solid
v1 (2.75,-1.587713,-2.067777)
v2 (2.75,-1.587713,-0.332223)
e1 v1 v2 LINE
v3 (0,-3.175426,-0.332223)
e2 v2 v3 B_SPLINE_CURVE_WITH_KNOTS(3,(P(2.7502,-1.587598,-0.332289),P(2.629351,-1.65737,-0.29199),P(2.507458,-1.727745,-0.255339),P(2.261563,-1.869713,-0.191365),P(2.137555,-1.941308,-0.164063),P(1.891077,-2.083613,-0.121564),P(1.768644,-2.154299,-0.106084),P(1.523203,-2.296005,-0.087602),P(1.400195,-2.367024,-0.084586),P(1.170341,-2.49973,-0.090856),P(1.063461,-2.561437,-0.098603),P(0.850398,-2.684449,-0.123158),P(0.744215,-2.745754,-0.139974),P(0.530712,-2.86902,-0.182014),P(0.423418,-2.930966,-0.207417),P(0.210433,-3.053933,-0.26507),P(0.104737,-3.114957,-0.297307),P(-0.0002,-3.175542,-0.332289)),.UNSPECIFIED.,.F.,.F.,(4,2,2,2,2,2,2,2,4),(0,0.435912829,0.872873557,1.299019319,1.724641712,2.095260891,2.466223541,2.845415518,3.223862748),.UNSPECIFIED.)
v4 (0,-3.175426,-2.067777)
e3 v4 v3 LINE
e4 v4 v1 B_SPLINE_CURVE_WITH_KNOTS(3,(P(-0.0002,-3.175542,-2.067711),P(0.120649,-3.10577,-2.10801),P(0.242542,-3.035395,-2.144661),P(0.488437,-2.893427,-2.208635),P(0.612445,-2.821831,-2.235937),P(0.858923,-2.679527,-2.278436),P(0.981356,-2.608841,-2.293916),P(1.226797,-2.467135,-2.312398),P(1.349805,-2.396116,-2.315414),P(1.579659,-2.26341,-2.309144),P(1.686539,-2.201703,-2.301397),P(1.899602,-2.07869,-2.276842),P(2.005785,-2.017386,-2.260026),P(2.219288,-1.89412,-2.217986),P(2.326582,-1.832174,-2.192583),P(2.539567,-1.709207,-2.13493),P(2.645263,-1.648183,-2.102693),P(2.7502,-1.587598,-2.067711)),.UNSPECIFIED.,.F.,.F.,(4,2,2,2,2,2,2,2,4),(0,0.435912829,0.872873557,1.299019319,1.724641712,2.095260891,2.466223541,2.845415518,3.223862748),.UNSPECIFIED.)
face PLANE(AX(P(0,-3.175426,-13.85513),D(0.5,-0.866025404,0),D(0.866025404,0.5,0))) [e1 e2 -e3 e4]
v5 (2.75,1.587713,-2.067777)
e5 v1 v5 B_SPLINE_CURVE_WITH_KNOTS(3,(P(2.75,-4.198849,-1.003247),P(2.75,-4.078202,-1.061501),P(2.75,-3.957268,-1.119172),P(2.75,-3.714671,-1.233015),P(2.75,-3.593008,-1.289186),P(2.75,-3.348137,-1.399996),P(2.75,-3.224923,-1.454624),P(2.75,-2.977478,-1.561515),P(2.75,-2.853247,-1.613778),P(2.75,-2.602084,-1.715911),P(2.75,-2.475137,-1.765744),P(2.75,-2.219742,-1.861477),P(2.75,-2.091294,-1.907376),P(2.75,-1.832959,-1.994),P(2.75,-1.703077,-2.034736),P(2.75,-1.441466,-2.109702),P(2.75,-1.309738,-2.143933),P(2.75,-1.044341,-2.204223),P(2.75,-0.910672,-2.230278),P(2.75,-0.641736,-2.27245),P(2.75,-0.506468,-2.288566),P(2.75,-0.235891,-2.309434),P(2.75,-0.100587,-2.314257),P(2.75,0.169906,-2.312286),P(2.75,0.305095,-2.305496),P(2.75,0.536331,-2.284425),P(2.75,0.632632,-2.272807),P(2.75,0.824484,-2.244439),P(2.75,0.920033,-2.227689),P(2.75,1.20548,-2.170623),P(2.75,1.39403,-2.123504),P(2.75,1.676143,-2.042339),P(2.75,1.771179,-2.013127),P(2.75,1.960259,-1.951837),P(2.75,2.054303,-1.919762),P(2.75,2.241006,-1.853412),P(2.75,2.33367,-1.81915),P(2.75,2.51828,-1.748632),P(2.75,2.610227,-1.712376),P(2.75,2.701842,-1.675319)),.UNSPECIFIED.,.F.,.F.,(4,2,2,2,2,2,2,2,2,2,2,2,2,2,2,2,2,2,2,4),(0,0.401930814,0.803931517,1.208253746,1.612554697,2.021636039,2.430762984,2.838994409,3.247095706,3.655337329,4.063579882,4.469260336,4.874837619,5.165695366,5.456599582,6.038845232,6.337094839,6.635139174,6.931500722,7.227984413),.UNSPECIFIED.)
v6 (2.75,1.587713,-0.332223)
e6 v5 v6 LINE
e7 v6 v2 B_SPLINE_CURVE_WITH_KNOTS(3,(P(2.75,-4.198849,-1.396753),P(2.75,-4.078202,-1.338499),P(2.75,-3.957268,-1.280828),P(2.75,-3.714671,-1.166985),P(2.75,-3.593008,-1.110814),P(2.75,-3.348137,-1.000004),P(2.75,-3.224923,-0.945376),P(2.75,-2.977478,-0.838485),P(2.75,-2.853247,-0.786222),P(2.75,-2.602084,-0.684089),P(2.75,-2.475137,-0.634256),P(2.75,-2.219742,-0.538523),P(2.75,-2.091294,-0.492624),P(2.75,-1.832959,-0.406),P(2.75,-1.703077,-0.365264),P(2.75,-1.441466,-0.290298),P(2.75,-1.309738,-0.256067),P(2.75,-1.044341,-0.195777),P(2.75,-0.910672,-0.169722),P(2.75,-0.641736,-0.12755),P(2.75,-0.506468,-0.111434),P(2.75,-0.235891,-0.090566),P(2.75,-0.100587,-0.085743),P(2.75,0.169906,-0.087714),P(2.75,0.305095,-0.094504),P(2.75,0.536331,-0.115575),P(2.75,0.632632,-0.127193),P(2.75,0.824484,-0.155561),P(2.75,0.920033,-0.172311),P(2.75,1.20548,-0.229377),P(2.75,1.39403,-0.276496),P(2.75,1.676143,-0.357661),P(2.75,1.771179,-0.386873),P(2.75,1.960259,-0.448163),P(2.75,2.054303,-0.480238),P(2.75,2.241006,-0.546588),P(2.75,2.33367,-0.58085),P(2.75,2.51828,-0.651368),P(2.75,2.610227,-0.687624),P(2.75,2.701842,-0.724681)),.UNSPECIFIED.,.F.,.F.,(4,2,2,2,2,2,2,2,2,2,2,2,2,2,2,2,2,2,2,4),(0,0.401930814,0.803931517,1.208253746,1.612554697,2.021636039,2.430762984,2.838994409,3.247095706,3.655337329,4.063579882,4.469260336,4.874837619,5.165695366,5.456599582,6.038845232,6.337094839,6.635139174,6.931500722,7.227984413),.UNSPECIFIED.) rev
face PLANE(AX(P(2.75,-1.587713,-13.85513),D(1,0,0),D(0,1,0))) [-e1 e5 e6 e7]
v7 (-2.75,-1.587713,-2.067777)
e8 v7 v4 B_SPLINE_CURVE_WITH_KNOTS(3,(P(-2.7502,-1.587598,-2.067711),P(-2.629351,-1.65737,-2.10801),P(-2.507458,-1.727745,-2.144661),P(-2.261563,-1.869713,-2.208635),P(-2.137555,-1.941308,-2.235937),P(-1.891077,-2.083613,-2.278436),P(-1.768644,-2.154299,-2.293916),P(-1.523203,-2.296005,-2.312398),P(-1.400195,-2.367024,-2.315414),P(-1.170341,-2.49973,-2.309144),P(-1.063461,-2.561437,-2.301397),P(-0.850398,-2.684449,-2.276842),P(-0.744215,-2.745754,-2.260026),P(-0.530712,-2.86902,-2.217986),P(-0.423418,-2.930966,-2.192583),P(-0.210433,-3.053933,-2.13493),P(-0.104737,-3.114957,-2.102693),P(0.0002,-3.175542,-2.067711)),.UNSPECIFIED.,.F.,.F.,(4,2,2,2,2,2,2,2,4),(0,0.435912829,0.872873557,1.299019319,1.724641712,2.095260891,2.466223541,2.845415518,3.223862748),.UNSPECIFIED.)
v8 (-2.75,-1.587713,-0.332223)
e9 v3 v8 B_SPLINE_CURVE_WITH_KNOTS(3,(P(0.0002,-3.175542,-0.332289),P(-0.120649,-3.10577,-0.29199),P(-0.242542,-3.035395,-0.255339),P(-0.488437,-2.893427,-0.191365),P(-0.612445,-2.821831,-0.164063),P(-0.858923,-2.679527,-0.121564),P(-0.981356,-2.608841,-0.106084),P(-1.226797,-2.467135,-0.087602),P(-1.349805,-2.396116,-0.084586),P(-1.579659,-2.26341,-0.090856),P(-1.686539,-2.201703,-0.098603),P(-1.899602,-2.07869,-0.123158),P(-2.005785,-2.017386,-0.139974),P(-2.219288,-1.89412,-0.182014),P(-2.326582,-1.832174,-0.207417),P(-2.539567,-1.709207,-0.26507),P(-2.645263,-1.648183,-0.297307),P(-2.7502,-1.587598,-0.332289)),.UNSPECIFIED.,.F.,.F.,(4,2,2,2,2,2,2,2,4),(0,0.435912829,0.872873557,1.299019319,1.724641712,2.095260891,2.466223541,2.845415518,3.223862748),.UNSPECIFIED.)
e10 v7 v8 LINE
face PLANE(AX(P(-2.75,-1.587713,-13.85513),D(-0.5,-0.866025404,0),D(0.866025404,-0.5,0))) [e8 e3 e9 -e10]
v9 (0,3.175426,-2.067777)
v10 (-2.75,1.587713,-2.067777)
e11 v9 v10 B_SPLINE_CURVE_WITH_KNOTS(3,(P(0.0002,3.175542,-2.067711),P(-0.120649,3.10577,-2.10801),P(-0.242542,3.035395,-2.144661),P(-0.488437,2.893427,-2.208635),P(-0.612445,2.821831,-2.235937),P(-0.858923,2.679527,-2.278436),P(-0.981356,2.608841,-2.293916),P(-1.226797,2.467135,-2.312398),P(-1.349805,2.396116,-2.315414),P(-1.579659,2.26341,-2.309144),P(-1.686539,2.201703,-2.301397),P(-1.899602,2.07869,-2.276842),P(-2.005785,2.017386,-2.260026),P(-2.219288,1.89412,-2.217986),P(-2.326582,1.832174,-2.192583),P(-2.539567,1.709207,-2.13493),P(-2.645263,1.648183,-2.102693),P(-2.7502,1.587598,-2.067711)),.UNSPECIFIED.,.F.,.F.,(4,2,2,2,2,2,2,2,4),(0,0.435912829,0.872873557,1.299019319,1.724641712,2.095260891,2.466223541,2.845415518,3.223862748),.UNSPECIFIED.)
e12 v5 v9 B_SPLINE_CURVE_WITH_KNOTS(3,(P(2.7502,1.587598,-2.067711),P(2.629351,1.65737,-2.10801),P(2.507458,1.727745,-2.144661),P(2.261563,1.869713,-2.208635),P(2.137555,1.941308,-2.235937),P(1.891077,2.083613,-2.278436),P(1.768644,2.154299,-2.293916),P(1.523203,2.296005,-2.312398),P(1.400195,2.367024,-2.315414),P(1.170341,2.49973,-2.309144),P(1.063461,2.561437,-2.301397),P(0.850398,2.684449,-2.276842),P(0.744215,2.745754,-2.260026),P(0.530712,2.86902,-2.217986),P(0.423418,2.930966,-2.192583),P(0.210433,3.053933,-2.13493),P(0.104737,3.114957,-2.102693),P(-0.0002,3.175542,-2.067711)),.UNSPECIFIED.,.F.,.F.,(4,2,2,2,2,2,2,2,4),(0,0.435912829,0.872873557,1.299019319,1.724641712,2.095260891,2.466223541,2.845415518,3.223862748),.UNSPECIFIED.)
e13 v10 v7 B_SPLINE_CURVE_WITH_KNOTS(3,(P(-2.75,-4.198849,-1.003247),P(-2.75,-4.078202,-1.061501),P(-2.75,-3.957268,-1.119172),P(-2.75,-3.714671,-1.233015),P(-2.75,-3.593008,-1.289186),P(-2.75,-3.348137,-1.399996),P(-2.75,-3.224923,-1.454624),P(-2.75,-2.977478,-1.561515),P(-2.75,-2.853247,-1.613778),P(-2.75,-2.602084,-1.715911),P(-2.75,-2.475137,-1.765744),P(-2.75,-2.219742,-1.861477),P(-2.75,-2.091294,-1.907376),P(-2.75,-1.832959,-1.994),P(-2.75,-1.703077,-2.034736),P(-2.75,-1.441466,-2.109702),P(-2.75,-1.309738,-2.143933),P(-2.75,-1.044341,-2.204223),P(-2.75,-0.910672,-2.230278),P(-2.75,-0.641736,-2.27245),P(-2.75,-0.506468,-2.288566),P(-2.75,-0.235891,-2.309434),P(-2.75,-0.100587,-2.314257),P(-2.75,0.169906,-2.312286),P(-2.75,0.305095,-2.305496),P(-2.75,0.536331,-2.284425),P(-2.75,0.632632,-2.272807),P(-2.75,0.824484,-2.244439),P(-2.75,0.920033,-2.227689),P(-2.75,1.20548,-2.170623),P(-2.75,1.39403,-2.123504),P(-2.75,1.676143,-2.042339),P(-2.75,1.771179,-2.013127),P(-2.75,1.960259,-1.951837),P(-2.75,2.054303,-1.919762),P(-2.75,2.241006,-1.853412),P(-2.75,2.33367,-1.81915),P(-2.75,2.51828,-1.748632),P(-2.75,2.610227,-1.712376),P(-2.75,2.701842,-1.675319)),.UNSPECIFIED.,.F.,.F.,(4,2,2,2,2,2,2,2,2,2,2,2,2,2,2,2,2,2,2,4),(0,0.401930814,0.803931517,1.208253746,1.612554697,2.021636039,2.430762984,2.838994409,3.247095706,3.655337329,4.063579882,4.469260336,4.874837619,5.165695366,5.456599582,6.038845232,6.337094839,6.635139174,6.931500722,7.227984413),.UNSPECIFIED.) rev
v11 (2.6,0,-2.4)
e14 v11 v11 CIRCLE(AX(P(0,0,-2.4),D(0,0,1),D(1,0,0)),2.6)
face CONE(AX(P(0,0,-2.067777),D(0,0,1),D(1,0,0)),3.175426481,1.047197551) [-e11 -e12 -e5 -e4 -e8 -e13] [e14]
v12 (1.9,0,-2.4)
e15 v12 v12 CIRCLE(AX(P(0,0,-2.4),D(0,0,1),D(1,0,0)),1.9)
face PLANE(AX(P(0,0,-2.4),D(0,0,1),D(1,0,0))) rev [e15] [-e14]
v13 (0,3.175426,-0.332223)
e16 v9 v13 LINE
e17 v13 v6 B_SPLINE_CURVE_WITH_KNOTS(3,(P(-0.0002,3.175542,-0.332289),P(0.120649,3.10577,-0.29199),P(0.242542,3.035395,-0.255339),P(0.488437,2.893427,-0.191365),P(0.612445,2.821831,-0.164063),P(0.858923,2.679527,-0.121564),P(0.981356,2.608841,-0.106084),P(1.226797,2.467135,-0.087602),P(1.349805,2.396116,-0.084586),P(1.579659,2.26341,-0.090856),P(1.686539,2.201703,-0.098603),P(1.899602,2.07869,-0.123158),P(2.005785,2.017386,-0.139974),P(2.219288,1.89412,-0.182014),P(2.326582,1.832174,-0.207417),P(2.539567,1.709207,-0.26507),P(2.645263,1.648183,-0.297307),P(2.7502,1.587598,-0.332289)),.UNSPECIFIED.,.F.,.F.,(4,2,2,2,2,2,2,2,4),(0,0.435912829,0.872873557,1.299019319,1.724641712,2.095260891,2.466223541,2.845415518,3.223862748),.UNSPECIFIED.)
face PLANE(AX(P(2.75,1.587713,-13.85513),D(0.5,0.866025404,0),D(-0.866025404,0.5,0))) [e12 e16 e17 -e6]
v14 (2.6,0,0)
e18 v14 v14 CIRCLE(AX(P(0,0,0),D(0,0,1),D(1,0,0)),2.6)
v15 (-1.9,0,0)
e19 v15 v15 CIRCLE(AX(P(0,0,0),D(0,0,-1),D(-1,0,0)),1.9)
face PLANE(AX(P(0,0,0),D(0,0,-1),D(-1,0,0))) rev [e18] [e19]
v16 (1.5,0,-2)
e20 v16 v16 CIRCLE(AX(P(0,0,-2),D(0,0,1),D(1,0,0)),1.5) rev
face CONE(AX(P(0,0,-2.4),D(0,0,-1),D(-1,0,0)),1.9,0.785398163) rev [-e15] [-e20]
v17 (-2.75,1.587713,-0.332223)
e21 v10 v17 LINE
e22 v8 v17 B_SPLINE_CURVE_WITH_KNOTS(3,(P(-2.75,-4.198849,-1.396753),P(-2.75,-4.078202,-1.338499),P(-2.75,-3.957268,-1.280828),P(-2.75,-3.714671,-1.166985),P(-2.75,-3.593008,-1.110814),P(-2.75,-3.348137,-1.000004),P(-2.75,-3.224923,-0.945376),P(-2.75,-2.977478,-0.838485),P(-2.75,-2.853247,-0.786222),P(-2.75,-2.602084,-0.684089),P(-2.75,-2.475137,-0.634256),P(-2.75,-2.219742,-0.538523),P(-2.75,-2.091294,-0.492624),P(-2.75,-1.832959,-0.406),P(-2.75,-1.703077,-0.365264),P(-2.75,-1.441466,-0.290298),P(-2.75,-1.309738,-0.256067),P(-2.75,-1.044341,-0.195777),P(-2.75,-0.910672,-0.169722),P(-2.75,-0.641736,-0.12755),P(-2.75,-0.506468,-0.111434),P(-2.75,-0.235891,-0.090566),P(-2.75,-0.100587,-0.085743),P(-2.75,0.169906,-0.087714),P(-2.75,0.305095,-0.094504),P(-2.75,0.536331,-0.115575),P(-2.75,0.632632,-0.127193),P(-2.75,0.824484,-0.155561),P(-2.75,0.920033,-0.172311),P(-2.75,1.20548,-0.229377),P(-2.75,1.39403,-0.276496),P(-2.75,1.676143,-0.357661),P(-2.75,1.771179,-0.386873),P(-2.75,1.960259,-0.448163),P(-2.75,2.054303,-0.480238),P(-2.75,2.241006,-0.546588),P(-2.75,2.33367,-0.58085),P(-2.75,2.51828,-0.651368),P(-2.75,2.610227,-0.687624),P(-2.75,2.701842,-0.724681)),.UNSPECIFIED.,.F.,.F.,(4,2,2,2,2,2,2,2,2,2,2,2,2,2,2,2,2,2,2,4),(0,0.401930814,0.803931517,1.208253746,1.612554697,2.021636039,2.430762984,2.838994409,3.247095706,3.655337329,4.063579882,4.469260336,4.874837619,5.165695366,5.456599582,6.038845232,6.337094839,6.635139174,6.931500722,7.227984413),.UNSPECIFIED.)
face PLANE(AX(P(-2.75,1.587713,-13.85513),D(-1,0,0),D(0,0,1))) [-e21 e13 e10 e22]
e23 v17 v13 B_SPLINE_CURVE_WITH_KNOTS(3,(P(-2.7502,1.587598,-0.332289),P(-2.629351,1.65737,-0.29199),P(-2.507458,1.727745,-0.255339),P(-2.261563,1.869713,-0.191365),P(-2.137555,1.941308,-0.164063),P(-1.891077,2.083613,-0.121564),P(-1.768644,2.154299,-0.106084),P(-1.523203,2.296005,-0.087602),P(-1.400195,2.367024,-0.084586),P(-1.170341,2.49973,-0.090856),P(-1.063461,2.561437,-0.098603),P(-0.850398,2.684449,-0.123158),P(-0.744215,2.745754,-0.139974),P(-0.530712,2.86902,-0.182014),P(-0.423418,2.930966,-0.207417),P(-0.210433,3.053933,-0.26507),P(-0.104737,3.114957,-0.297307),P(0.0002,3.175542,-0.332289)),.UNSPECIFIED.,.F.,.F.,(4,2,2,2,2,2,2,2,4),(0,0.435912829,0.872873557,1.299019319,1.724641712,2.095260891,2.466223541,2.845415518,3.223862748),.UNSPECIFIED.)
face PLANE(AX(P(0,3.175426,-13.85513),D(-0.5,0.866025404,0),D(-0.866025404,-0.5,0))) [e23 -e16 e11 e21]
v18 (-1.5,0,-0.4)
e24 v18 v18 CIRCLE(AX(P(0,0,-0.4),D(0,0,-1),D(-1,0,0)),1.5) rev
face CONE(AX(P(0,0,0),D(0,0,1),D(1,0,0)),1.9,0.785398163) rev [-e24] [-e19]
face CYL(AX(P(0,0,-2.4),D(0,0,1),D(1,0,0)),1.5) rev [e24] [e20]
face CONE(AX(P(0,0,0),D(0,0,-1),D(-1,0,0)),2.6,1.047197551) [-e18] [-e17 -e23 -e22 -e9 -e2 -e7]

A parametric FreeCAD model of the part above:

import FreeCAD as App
import Part
import Sketcher
from FreeCAD import Vector
Q = App.Units.Quantity


def edges_at(feature, points):
    """Names of the edges that pass closest to the given points."""
    edges = feature.Shape.Edges
    near = lambda p: min(range(len(edges)), key=lambda i: edges[i].distToShape(Part.Vertex(*p))[0])
    return sorted({f"Edge{near(p) + 1}" for p in points})


def add_polygon(sketch, points):
    """Adds a closed chain of lines whose ends are joined by coincident constraints."""
    first, n = sketch.GeometryCount, len(points)
    for a, b in zip(points, points[1:] + points[:1]):
        sketch.addGeometry(Part.LineSegment(App.Vector(*a, 0), App.Vector(*b, 0)), False)
    for i in range(n):
        sketch.addConstraint(Sketcher.Constraint("Coincident", first + i, 2, first + (i + 1) % n, 1))

doc = App.newDocument("Part")
body = doc.addObject("PartDesign::Body", "Body")

sketch1 = body.newObject("Sketcher::SketchObject", "Sketch")
sketch1.AttachmentSupport = (doc.getObject("XZ_Plane"), [""])
sketch1.MapMode = "FlatFace"
add_polygon(sketch1, [(-4, -2.4), (-4, 0), (0, 0), (0, -2.4)])
sketch1.addConstraint([
    Sketcher.Constraint("Vertical", 0),
    Sketcher.Constraint("Horizontal", 1),
    Sketcher.Constraint("Vertical", 2),
    Sketcher.Constraint("Horizontal", 3),
    Sketcher.Constraint("Coincident", 1, 2, -1, 1),
    Sketcher.Constraint("DistanceX", 1, 1, 1, 2, Q("4 mm")),
    Sketcher.Constraint("DistanceY", 0, 1, 0, 2, Q("2.4 mm")),
])
revolution = body.newObject("PartDesign::Revolution", "Revolution")
revolution.Profile = sketch1
revolution.ReferenceAxis = (sketch1, ["V_Axis"])
revolution.Angle = 360

sketch2 = body.newObject("Sketcher::SketchObject", "Sketch001")
sketch2.AttachmentSupport = (doc.getObject("XY_Plane"), [""])
sketch2.MapMode = "FlatFace"
add_polygon(sketch2, [(-6.2, 6.2), (-6.2, -6.2), (6.2, -6.2), (6.2, 6.2)])
add_polygon(sketch2, [(2.8, 1.6), (2.8, -1.6), (0, -3.2), (-2.8, -1.6), (-2.8, 1.6), (0, 3.2)])
sketch2.addConstraint([
    Sketcher.Constraint("Vertical", 0),
    Sketcher.Constraint("Horizontal", 1),
    Sketcher.Constraint("Vertical", 2),
    Sketcher.Constraint("Horizontal", 3),
    Sketcher.Constraint("Vertical", 4),
    Sketcher.Constraint("Vertical", 7),
    Sketcher.Constraint("Symmetric", 0, 2, 2, 2, -1, 1),
    Sketcher.Constraint("Symmetric", 4, 2, 7, 2, -1, 1),
    Sketcher.Constraint("Symmetric", 5, 2, 8, 2, -1, 1),
    Sketcher.Constraint("PointOnObject", 5, 2, -2),
    Sketcher.Constraint("Parallel", 6, 9),
    Sketcher.Constraint("Horizontal", 4, 2, 6, 2),
    Sketcher.Constraint("Equal", 3, 0),
    Sketcher.Constraint("Angle", 5, Q("-150 deg")),
    Sketcher.Constraint("DistanceX", 6, 2, 4, 2, Q("5.5 mm")),
    Sketcher.Constraint("DistanceX", 1, 1, 1, 2, Q("12.314 mm")),
    Sketcher.Constraint("DistanceY", 4, 2, 4, 1, Q("3.175426 mm")),
])
pocket1 = body.newObject("PartDesign::Pocket", "Pocket")
pocket1.Profile = sketch2
pocket1.Length = 2.4

sketch3 = body.newObject("Sketcher::SketchObject", "Sketch002")
sketch3.AttachmentSupport = (doc.getObject("XY_Plane"), [""])
sketch3.MapMode = "FlatFace"
sketch3.addGeometry(Part.Circle(Vector(0, 0, 0), Vector(0, 0, 1), 1.5), False)
sketch3.addConstraint([
    Sketcher.Constraint("Coincident", 0, 3, -1, 1),
    Sketcher.Constraint("Diameter", 0, Q("3 mm")),
])
pocket2 = body.newObject("PartDesign::Pocket", "Pocket001")
pocket2.Profile = sketch3
pocket2.Type = "ThroughAll"
pocket2.Midplane = True

sketch4 = body.newObject("Sketcher::SketchObject", "Sketch003")
sketch4.AttachmentSupport = (doc.getObject("YZ_Plane"), [""])
sketch4.MapMode = "FlatFace"
add_polygon(sketch4, [(2.6, 0), (3.18, -0.33), (3.18, 0)])
add_polygon(sketch4, [(3.18, -2.07), (2.6, -2.4), (3.18, -2.4)])
sketch4.addConstraint([
    Sketcher.Constraint("Vertical", 1),
    Sketcher.Constraint("Horizontal", 2),
    Sketcher.Constraint("Horizontal", 4),
    Sketcher.Constraint("Vertical", 5),
    Sketcher.Constraint("PointOnObject", 1, 2, -1),
    Sketcher.Constraint("Vertical", 2, 2, 3, 2),
    Sketcher.Constraint("Vertical", 1, 2, 4, 2),
    Sketcher.Constraint("Equal", 1, 5),
    Sketcher.Constraint("Angle", 0, Q("-30 deg")),
    Sketcher.Constraint("DistanceX", -1, 1, 2, 2, Q("2.6 mm")),
    Sketcher.Constraint("DistanceY", 3, 2, -1, 1, Q("2.4 mm")),
    Sketcher.Constraint("DistanceX", 2, 2, 2, 1, Q("0.575426 mm")),
])
groove = body.newObject("PartDesign::Groove", "Groove")
groove.Profile = sketch4
groove.ReferenceAxis = (sketch4, ["V_Axis"])
groove.Angle = 360
doc.recompute()

chamfer = body.newObject("PartDesign::Chamfer", "Chamfer")
chamfer.Base = (groove, edges_at(groove, [(-1.5, 0, -2.4), (-1.5, 0, 0)]))
chamfer.Size = 0.4

doc.recompute()
